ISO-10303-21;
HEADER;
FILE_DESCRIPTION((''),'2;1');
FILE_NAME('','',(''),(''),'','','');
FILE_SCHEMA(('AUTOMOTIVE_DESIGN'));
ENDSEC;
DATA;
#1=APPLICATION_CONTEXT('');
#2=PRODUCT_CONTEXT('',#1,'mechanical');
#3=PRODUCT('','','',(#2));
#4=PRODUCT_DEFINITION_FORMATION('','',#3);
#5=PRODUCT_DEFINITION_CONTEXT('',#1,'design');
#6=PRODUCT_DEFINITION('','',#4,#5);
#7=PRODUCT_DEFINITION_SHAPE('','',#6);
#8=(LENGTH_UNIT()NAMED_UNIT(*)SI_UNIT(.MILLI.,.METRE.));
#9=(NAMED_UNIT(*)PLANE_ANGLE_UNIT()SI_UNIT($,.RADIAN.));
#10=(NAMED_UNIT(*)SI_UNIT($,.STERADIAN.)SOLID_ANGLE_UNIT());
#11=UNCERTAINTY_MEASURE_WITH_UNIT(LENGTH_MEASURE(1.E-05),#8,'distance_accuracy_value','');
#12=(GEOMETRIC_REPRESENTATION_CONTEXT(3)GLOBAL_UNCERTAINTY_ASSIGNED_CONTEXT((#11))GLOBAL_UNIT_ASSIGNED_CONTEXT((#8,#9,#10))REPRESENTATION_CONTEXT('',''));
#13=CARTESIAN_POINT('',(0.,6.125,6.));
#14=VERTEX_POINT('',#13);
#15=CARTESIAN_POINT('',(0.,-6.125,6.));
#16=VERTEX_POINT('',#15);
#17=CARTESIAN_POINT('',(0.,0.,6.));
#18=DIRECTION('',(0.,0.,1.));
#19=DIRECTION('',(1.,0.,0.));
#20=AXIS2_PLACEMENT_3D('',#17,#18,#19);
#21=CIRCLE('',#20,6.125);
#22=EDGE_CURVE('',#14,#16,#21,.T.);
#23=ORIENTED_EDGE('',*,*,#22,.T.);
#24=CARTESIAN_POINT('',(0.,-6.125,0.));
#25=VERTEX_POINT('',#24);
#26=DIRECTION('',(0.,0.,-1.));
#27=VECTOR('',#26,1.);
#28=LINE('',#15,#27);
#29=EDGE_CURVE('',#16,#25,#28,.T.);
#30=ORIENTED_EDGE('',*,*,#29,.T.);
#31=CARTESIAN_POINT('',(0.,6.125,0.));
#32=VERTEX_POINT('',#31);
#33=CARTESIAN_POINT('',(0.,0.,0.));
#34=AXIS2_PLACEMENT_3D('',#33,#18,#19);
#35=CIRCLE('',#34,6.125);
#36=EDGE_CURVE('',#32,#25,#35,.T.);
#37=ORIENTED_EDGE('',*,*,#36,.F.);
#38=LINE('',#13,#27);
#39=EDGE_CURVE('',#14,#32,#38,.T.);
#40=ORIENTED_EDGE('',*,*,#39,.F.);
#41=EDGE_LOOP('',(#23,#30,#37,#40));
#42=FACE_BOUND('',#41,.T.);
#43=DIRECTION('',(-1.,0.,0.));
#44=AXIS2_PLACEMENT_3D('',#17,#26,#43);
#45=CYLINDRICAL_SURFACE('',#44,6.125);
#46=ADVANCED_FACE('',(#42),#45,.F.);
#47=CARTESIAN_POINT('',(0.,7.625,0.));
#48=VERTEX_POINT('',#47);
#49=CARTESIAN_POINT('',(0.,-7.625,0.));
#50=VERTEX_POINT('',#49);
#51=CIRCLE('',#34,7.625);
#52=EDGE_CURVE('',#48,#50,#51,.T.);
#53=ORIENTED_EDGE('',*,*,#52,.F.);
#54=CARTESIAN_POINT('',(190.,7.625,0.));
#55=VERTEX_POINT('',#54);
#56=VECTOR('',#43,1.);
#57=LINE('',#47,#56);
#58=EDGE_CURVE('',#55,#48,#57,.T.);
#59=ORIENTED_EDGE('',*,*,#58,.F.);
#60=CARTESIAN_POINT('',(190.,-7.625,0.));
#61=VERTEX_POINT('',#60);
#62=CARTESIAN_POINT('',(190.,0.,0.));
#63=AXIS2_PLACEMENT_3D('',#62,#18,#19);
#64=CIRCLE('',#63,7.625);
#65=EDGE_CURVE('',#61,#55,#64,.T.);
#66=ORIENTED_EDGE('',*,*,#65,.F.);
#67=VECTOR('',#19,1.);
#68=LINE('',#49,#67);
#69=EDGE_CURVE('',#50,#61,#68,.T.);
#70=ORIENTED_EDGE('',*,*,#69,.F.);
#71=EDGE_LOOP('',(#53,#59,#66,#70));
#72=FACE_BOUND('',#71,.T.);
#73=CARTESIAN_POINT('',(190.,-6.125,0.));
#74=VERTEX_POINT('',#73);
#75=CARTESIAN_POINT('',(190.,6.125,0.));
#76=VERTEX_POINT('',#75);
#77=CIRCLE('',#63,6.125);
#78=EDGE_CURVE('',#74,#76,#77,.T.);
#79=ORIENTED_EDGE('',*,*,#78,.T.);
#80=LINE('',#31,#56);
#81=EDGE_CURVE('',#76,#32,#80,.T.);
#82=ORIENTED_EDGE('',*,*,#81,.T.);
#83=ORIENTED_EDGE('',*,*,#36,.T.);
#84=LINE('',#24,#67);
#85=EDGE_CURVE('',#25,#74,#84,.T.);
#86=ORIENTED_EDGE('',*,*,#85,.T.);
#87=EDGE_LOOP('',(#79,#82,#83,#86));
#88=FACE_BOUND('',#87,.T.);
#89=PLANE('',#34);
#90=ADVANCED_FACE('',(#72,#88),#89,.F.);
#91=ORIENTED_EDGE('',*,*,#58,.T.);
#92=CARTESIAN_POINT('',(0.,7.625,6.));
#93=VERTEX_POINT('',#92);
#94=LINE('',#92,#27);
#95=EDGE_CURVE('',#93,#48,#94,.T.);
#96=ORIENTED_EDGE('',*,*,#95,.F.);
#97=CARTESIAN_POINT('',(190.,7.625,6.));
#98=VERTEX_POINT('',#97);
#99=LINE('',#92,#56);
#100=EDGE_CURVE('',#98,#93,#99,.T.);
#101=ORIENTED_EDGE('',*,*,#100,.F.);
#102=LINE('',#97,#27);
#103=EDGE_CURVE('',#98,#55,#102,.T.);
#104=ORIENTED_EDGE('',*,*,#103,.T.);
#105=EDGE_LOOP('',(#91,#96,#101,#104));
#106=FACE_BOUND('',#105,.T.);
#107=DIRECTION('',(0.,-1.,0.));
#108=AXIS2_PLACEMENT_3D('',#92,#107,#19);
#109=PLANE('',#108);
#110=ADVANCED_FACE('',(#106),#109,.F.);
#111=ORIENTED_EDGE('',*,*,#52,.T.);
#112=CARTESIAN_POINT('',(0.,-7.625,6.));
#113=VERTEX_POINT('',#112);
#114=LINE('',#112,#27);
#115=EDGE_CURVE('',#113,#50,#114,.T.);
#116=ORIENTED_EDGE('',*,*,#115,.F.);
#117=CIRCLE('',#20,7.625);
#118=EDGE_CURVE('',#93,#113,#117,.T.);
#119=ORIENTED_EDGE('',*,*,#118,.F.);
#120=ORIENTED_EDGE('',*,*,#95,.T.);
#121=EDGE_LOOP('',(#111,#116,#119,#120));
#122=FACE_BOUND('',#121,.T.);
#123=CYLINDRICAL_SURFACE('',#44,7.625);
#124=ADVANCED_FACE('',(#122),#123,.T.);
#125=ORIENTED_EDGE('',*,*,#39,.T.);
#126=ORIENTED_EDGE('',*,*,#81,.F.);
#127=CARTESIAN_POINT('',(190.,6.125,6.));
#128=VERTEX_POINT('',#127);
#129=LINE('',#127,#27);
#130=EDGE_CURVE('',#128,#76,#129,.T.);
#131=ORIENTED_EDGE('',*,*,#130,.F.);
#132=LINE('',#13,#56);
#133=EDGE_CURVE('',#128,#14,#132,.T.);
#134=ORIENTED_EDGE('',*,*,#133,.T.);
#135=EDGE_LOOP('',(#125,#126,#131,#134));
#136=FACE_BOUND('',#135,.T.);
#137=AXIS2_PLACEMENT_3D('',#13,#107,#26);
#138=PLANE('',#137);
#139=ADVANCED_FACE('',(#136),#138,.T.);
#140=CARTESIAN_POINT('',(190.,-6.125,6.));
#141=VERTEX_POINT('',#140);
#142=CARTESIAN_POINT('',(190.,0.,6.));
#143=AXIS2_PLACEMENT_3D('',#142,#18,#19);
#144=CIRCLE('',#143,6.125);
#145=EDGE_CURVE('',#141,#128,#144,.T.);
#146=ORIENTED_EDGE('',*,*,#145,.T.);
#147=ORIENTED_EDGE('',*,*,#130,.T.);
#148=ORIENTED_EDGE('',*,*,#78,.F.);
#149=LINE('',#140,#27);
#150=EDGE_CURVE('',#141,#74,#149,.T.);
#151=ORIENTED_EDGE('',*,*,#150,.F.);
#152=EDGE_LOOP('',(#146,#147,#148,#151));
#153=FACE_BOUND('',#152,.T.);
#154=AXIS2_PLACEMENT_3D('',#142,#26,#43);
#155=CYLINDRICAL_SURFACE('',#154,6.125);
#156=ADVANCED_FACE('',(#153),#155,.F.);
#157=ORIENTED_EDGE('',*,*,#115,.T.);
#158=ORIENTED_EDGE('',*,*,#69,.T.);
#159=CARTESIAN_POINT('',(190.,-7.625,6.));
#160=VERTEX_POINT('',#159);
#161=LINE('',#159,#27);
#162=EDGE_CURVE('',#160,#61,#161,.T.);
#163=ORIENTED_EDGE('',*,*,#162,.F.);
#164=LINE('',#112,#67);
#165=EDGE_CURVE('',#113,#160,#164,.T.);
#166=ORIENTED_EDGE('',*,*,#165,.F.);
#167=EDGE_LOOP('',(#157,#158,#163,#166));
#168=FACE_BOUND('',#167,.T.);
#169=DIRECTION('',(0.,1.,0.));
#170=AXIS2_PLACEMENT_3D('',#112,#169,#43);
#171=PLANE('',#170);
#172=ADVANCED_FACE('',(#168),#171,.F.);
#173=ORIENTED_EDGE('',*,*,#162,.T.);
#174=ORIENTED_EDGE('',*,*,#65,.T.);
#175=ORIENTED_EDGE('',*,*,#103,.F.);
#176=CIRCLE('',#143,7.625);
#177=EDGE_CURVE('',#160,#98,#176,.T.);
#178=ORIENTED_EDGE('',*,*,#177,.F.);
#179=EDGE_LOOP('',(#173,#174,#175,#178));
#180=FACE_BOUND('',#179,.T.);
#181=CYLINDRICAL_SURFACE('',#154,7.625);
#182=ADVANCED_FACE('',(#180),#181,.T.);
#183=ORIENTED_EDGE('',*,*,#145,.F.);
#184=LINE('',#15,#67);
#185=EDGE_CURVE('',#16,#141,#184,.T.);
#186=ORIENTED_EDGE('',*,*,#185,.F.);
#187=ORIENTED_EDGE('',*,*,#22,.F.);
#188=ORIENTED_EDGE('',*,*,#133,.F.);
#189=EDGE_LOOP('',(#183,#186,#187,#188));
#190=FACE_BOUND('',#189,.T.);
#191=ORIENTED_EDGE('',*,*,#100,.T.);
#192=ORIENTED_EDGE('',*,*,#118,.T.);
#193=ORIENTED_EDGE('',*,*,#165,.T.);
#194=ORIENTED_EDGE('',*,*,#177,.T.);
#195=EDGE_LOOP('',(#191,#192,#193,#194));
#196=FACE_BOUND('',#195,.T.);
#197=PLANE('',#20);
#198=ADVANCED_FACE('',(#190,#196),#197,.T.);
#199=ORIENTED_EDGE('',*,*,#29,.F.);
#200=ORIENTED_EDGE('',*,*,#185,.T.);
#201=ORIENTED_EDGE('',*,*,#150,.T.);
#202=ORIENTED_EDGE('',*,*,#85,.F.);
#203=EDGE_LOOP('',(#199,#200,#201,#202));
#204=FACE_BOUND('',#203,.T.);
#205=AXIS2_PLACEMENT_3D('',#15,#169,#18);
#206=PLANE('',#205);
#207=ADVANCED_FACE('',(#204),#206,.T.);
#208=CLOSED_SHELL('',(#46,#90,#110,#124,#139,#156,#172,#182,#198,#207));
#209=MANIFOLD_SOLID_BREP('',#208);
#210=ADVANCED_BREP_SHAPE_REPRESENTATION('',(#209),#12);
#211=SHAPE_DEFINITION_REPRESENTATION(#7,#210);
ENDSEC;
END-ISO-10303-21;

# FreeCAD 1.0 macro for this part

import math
import FreeCAD as App
import Part
import Sketcher
from FreeCAD import Vector

doc = App.newDocument("Part")
params = doc.addObject("Spreadsheet::Sheet", "Params")
for row, (alias, value) in enumerate([
    ("sketch1_width", "190 mm"),
    ("pad1_length", "6 mm"),
], start=1):
    params.set(f"A{row}", alias)
    params.set(f"B{row}", "=" + value)
    params.setAlias(f"B{row}", alias)

body = doc.addObject("PartDesign::Body", "Body")

# Sketch on XY plane
sketch1 = doc.addObject("Sketcher::SketchObject", "Sketch")
body.addObject(sketch1)
sketch1.AttachmentSupport = (doc.XY_Plane, [""])
sketch1.MapMode = "FlatFace"
sketch1.addGeometry([
    Part.LineSegment(Vector(190, 7.625, 0), Vector(0, 7.625, 0)),  # 0
    Part.ArcOfCircle(Part.Circle(Vector(0, 0, 0), Vector(0, 0, 1), 7.625), math.radians(90), math.radians(270)),  # 1
    Part.LineSegment(Vector(0, -7.625, 0), Vector(190, -7.625, 0)),  # 2
    Part.ArcOfCircle(Part.Circle(Vector(190, 0, 0), Vector(0, 0, 1), 7.625), math.radians(-90), math.radians(90)),  # 3
    Part.LineSegment(Vector(0, 6.125, 0), Vector(190, 6.125, 0)),  # 4
    Part.ArcOfCircle(Part.Circle(Vector(190, 0, 0), Vector(0, 0, 1), 6.125), math.radians(-90), math.radians(90)),  # 5
    Part.LineSegment(Vector(190, -6.125, 0), Vector(0, -6.125, 0)),  # 6
    Part.ArcOfCircle(Part.Circle(Vector(0, 0, 0), Vector(0, 0, 1), 6.125), math.radians(90), math.radians(270)),  # 7
], False)
sketch1.addConstraint([
    Sketcher.Constraint("Tangent", 0, 2, 1, 1),
    Sketcher.Constraint("Tangent", 1, 2, 2, 1),
    Sketcher.Constraint("Tangent", 2, 2, 3, 1),
    Sketcher.Constraint("Tangent", 3, 2, 0, 1),
    Sketcher.Constraint("Tangent", 4, 2, 5, 2),
    Sketcher.Constraint("Tangent", 5, 1, 6, 1),
    Sketcher.Constraint("Tangent", 6, 2, 7, 2),
    Sketcher.Constraint("Tangent", 7, 1, 4, 1),
    Sketcher.Constraint("Horizontal", 0),
    Sketcher.Constraint("Horizontal", 2),
    Sketcher.Constraint("Horizontal", 4),
    Sketcher.Constraint("Horizontal", 6),
    Sketcher.Constraint("Coincident", 1, 3, -1, 1),
    Sketcher.Constraint("Coincident", 7, 3, -1, 1),
    Sketcher.Constraint("Vertical", 5, 3, 2, 2),
    Sketcher.Constraint("DistanceX", 0, 2, 0, 1, 190.0),
    Sketcher.Constraint("Radius", 1, 7.625),
    Sketcher.Constraint("Radius", 5, 6.125),
])
sketch1.setExpression("Constraints[15]", "Params.sketch1_width")
pad1 = doc.addObject("PartDesign::Pad", "Pad")
body.addObject(pad1)
pad1.Profile = sketch1
pad1.setExpression("Length", "Params.pad1_length")

doc.recompute()
